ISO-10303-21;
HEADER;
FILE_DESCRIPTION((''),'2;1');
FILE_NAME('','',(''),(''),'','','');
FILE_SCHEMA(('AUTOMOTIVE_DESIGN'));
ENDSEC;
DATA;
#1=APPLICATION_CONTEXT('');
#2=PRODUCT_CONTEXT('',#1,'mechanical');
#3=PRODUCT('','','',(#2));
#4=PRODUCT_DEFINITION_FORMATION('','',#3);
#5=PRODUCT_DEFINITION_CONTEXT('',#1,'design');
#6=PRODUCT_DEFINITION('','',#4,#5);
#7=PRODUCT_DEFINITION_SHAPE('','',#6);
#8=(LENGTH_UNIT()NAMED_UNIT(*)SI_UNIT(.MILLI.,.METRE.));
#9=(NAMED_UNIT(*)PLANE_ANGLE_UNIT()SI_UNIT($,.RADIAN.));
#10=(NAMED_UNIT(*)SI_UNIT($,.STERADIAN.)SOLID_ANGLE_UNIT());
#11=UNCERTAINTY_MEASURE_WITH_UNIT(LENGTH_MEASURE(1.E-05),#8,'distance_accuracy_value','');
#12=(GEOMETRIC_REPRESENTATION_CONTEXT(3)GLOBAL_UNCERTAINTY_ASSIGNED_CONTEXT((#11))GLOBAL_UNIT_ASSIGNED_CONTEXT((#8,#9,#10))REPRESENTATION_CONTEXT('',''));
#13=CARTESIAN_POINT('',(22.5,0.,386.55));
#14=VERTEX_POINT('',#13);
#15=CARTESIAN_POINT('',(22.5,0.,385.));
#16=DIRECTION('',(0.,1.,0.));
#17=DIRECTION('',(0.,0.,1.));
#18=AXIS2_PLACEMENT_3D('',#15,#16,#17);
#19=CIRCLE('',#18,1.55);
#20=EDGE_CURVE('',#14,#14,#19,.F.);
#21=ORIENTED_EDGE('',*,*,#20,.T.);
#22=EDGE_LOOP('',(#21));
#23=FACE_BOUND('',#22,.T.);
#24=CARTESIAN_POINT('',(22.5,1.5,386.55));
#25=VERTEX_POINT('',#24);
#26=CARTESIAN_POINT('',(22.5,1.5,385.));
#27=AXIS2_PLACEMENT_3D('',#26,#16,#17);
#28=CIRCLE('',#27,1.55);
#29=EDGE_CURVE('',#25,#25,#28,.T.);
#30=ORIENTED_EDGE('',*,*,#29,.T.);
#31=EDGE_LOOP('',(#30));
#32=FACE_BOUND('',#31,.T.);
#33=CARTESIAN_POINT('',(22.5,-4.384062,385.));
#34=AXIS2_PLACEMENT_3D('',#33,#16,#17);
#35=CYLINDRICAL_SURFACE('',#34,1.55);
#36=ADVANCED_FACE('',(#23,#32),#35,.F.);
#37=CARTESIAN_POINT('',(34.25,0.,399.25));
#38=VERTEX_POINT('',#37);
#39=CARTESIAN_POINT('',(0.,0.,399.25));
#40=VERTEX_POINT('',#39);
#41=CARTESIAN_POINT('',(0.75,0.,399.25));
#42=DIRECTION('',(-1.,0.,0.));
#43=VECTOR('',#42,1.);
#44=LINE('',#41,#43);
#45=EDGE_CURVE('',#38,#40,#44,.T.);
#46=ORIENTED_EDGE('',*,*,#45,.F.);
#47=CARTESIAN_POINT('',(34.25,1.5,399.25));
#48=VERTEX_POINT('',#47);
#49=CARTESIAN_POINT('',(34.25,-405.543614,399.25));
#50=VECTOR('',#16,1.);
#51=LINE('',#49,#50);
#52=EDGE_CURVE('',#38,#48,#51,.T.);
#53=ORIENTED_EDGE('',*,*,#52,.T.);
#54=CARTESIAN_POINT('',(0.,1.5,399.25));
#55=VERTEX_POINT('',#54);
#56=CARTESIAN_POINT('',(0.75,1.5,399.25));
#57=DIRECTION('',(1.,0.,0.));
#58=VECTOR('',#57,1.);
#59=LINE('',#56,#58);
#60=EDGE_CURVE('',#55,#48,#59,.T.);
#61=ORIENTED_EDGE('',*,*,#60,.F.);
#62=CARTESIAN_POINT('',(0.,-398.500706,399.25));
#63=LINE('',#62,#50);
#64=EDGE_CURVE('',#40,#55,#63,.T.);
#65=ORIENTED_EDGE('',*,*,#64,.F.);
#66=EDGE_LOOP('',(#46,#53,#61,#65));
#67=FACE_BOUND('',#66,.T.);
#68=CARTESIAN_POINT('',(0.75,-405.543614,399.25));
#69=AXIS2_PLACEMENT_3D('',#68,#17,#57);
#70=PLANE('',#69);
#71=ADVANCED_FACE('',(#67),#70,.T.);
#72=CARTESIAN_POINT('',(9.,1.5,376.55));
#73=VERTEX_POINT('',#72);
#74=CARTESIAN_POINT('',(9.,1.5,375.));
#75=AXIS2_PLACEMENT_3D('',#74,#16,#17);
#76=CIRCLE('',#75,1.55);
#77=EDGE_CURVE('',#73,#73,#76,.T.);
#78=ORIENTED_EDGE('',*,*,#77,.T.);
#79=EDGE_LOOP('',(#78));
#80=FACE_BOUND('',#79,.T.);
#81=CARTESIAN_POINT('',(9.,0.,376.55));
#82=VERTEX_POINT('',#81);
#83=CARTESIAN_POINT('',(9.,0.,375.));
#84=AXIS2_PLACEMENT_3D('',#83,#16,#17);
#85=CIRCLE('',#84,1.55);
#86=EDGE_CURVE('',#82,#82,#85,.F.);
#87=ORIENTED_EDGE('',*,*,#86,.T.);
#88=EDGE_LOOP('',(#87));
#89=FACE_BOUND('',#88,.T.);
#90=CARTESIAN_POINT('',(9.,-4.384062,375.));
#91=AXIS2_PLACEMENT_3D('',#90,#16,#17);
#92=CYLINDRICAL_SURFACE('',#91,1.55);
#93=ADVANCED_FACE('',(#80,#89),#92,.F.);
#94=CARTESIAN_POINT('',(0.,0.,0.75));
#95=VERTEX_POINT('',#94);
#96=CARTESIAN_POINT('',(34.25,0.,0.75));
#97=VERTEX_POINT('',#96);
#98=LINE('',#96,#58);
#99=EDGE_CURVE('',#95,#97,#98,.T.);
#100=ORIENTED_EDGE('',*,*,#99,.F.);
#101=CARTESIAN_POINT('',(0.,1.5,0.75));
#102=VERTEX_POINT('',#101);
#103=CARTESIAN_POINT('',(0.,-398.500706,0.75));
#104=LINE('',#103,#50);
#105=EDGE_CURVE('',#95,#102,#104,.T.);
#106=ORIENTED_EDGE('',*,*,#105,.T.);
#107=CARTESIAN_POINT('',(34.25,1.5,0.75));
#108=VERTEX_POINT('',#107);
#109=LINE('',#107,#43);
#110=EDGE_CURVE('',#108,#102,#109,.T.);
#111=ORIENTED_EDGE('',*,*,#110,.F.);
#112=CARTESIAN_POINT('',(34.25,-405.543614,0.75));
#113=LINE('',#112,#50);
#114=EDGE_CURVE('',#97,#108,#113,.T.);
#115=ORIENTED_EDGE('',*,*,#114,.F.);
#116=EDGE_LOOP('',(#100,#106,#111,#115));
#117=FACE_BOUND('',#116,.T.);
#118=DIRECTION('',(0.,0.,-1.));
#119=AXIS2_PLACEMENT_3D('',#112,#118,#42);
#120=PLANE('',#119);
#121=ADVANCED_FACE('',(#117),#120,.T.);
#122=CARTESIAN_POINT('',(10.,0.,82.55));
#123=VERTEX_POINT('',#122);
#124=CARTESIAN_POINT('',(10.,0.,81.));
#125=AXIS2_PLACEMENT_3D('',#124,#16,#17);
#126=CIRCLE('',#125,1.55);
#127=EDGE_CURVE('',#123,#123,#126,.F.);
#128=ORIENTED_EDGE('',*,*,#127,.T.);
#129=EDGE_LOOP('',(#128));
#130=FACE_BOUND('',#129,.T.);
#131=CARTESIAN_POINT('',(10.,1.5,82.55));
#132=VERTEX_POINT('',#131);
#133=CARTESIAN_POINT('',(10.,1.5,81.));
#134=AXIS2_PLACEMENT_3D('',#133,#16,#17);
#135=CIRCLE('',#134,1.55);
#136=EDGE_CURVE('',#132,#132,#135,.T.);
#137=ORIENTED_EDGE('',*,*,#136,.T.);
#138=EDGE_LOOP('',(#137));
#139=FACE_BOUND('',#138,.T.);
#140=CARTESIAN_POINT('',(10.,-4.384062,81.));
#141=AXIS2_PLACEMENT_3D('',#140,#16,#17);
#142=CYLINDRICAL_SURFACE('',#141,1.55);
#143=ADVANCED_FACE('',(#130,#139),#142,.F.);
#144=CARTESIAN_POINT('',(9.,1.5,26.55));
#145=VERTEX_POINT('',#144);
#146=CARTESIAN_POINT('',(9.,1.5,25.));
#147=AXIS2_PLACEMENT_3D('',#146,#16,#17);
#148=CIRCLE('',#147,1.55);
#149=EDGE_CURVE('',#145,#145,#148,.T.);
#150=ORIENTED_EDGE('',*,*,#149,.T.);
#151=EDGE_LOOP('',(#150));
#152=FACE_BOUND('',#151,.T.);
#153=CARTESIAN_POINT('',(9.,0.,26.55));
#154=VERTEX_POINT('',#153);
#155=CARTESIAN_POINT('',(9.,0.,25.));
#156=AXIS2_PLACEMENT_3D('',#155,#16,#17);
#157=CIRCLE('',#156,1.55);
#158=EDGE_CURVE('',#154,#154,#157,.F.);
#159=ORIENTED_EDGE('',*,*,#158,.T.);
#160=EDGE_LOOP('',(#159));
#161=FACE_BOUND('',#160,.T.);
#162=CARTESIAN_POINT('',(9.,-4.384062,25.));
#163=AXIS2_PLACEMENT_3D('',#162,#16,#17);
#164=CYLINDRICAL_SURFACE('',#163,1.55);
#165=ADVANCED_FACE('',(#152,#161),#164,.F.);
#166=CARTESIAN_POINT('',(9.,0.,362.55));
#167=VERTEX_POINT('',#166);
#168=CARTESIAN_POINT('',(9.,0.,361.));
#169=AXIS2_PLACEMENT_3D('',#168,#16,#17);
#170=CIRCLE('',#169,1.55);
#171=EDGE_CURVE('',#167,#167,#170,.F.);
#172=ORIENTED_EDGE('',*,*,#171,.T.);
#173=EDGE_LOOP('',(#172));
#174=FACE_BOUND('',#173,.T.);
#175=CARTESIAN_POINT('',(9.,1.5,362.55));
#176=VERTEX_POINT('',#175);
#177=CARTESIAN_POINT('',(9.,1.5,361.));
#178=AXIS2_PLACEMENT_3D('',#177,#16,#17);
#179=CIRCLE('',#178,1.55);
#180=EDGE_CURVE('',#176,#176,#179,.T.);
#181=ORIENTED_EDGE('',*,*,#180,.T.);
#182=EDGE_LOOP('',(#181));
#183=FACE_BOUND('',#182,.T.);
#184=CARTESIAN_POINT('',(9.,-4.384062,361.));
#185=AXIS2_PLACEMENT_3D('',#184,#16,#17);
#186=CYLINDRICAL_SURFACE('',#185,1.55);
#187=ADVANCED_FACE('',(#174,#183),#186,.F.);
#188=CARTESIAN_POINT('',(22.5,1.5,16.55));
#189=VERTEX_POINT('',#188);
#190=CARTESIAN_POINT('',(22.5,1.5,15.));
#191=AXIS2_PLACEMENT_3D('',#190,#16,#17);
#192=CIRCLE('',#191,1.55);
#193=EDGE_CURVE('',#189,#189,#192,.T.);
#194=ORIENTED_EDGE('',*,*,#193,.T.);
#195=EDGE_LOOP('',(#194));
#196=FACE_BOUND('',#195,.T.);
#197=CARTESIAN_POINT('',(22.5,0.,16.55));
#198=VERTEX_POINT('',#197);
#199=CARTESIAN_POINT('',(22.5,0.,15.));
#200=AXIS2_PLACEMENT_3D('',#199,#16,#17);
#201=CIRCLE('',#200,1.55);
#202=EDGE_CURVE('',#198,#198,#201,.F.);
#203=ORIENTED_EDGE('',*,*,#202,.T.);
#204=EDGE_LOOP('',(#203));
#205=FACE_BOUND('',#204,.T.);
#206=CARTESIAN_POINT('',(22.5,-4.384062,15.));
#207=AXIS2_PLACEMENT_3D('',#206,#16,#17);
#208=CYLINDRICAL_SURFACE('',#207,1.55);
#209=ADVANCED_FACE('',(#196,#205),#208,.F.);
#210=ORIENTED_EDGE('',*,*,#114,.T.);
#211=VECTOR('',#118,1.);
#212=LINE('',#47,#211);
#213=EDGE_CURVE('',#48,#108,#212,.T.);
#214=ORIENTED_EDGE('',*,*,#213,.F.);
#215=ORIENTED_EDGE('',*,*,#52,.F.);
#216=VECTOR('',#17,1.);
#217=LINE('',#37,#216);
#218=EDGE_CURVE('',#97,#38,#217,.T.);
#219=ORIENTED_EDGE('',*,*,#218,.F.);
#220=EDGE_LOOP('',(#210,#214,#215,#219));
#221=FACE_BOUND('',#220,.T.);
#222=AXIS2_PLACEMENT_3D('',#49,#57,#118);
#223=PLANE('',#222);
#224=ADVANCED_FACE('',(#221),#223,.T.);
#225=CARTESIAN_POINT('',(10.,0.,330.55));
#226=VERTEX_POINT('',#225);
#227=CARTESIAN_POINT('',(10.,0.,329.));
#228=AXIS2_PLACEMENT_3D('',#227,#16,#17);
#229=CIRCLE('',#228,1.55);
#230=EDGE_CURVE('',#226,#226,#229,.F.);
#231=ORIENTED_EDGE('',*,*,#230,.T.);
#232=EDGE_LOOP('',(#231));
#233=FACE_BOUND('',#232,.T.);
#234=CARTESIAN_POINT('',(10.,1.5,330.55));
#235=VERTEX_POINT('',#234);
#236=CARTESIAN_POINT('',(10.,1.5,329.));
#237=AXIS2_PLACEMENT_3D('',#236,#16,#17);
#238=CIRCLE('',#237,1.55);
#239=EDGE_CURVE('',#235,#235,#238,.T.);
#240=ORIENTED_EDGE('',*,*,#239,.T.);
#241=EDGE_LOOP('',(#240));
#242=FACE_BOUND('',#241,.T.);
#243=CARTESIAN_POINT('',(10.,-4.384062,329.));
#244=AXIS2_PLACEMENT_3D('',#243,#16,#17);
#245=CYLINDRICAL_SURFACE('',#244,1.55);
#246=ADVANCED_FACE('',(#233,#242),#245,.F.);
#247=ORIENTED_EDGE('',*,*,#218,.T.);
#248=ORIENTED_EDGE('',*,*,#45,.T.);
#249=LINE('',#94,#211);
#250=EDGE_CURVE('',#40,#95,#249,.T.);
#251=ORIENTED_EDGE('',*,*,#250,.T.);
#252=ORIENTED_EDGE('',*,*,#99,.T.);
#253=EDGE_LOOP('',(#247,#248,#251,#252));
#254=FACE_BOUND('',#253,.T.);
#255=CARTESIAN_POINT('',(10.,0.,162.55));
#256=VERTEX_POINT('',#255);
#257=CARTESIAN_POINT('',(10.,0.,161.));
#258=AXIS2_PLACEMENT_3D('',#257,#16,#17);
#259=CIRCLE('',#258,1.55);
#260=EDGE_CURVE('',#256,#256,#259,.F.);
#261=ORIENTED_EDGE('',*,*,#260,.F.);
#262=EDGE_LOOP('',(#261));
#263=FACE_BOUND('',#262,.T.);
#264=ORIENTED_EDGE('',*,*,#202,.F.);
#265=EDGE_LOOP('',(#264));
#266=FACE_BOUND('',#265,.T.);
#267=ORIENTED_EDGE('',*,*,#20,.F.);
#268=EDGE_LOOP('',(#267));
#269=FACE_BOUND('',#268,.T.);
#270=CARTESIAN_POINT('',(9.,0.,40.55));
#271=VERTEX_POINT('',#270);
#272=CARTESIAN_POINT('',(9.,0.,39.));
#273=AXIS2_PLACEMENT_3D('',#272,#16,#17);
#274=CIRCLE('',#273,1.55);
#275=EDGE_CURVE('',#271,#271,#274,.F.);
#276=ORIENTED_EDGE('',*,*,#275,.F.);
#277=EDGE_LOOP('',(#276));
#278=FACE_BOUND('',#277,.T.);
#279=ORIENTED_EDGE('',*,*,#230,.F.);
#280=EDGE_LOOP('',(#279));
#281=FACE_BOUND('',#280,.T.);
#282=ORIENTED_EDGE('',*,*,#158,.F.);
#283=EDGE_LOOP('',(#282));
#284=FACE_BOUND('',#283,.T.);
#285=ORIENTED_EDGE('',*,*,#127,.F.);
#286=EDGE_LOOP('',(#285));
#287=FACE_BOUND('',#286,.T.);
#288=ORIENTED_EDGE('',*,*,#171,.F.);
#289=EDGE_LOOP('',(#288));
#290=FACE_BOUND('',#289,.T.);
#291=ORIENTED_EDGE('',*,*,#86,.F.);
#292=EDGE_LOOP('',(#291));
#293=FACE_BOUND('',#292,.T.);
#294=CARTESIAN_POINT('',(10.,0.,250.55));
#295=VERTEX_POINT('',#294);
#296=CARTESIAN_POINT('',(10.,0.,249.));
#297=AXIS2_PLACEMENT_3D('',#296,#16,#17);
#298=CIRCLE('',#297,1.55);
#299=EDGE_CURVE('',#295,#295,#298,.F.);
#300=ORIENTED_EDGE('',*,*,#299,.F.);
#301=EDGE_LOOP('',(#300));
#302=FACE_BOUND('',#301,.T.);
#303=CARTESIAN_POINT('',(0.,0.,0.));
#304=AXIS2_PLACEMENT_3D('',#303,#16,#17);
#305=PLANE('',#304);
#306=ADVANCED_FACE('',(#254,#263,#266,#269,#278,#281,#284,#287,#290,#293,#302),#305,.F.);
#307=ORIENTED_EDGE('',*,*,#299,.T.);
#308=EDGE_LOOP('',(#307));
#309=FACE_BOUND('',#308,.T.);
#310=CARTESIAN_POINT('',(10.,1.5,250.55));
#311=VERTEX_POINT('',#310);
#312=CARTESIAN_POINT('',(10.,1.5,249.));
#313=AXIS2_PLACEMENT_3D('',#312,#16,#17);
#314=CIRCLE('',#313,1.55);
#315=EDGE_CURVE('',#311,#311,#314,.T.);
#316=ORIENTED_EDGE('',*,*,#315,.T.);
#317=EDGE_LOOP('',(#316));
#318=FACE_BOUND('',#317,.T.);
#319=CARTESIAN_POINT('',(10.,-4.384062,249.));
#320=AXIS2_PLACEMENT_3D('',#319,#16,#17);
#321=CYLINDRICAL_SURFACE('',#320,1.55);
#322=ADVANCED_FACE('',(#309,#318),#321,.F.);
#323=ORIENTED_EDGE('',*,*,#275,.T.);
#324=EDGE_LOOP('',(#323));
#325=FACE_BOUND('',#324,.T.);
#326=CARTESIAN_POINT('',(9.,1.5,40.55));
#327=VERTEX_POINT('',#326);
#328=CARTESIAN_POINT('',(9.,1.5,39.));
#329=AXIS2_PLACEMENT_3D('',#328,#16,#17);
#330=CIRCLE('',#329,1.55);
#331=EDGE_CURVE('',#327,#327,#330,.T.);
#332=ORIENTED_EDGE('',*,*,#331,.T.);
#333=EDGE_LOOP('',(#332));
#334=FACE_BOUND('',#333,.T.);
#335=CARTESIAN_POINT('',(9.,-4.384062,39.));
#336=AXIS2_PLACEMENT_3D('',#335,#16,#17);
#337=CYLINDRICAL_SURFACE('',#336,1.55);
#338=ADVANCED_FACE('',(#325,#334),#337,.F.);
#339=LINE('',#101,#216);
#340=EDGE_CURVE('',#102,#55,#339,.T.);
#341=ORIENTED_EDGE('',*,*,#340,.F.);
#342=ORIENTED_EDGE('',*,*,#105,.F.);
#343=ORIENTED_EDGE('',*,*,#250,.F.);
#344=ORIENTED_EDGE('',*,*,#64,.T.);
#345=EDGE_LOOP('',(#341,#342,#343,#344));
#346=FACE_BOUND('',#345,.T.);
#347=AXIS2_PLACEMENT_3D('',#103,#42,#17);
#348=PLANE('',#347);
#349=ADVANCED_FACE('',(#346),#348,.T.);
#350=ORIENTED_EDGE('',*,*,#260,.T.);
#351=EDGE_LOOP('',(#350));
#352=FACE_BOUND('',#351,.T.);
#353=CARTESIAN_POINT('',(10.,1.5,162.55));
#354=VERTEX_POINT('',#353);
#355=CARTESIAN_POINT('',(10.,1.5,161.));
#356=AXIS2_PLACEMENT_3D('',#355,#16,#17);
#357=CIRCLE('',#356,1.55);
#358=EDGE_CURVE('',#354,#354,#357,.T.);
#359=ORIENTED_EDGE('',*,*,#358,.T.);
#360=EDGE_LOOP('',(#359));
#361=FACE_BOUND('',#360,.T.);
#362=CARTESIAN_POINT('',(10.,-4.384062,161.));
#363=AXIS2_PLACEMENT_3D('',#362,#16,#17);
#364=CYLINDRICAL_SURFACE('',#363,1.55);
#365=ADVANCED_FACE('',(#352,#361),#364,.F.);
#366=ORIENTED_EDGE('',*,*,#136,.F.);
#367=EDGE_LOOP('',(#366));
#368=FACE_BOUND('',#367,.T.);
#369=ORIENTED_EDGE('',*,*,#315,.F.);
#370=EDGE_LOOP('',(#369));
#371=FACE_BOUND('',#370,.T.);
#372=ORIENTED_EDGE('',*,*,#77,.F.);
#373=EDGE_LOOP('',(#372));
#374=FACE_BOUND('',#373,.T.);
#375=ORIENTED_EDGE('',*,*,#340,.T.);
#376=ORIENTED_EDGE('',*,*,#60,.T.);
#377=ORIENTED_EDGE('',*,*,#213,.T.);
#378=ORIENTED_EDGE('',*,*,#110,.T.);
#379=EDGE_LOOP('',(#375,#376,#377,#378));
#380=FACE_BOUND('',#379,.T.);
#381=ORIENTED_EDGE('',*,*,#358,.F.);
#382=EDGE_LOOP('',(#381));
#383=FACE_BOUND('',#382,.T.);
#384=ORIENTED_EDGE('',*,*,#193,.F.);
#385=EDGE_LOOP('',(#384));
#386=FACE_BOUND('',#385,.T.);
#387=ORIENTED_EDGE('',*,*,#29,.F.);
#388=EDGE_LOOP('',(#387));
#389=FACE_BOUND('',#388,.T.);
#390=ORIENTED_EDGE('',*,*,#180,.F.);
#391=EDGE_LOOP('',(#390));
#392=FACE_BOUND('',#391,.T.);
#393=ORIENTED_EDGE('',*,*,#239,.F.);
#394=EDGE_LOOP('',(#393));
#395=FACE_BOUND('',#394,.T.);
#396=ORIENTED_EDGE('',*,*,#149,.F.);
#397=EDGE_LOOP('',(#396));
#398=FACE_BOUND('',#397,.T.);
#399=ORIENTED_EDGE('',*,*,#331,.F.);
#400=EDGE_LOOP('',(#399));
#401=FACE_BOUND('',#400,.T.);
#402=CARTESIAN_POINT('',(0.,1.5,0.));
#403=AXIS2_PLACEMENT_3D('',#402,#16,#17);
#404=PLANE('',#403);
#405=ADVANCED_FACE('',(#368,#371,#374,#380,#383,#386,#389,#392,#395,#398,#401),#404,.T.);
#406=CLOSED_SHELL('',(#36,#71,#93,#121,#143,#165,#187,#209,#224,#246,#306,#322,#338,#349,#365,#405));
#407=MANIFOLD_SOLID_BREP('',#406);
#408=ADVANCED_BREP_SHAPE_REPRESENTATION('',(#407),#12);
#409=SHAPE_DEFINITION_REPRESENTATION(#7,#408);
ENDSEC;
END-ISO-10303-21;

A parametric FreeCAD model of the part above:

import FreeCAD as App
import Part
import Sketcher

V = App.Vector
Q = App.Units.Quantity


def add_polygon(sketch, points):
    """Adds a closed chain of lines whose ends are joined by coincident constraints."""
    first, n = sketch.GeometryCount, len(points)
    for a, b in zip(points, points[1:] + points[:1]):
        sketch.addGeometry(Part.LineSegment(App.Vector(*a, 0), App.Vector(*b, 0)), False)
    for i in range(n):
        sketch.addConstraint(Sketcher.Constraint("Coincident", first + i, 2, first + (i + 1) % n, 1))

doc = App.newDocument("Part")
body = doc.addObject("PartDesign::Body", "Body")

sketch1 = body.newObject("Sketcher::SketchObject", "Sketch")
sketch1.AttachmentSupport = (doc.getObject("XZ_Plane"), [""])
sketch1.MapMode = "FlatFace"
add_polygon(sketch1, [(0, 0), (0, 400), (35, 400), (35, 0)])
sketch1.addConstraint(Sketcher.Constraint("Vertical", 0))
sketch1.addConstraint(Sketcher.Constraint("Horizontal", 1))
sketch1.addConstraint(Sketcher.Constraint("Vertical", 2))
sketch1.addConstraint(Sketcher.Constraint("Horizontal", 3))
sketch1.addConstraint(Sketcher.Constraint("Coincident", 3, 2, -1, 1))
sketch1.addConstraint(Sketcher.Constraint("DistanceX", 1, 1, 1, 2, Q("35 mm")))
sketch1.addConstraint(Sketcher.Constraint("DistanceY", 0, 1, 0, 2, Q("400 mm")))
pad1 = body.newObject("PartDesign::Pad", "Pad")
pad1.Profile = sketch1
pad1.Length = 1.5
pad1.Reversed = True

sketch2 = body.newObject("Sketcher::SketchObject", "Sketch001")
sketch2.AttachmentSupport = (doc.getObject("XZ_Plane"), [""])
sketch2.MapMode = "FlatFace"
sketch2.AttachmentOffset = App.Placement(V(0, 0, -1.5), App.Rotation())
sketch2.addGeometry(Part.Circle(V(22.5, 15, 0), V(0, 0, 1), 1.55), False)
sketch2.addGeometry(Part.Circle(V(22.5, 385, 0), V(0, 0, 1), 1.55), False)
sketch2.addConstraint(Sketcher.Constraint("Equal", 0, 1))
sketch2.addConstraint(Sketcher.Constraint("Vertical", 0, 3, 1, 3))
sketch2.addConstraint(Sketcher.Constraint("Diameter", 0, Q("3.1 mm")))
sketch2.addConstraint(Sketcher.Constraint("DistanceY", -1, 1, 0, 3, Q("15 mm")))
sketch2.addConstraint(Sketcher.Constraint("DistanceY", -1, 1, 1, 3, Q("385 mm")))
sketch2.addConstraint(Sketcher.Constraint("DistanceX", -1, 1, 0, 3, Q("22.5 mm")))
pocket1 = body.newObject("PartDesign::Pocket", "Pocket")
pocket1.Profile = sketch2
pocket1.Length = 1.5
pocket1.Reversed = True

sketch3 = body.newObject("Sketcher::SketchObject", "Sketch002")
sketch3.AttachmentSupport = (doc.getObject("XZ_Plane"), [""])
sketch3.MapMode = "FlatFace"
sketch3.AttachmentOffset = App.Placement(V(0, 0, -1.5), App.Rotation())
sketch3.addGeometry(Part.Circle(V(9, 25, 0), V(0, 0, 1), 1.55), False)
sketch3.addGeometry(Part.Circle(V(9, 39, 0), V(0, 0, 1), 1.55), False)
sketch3.addGeometry(Part.Circle(V(9, 375, 0), V(0, 0, 1), 1.55), False)
sketch3.addGeometry(Part.Circle(V(9, 361, 0), V(0, 0, 1), 1.55), False)
sketch3.addConstraint(Sketcher.Constraint("Equal", 0, 1))
sketch3.addConstraint(Sketcher.Constraint("Equal", 1, 2))
sketch3.addConstraint(Sketcher.Constraint("Equal", 2, 3))
sketch3.addConstraint(Sketcher.Constraint("Vertical", 0, 3, 1, 3))
sketch3.addConstraint(Sketcher.Constraint("Vertical", 1, 3, 2, 3))
sketch3.addConstraint(Sketcher.Constraint("Vertical", 2, 3, 3, 3))
sketch3.addConstraint(Sketcher.Constraint("Diameter", 0, Q("3.1 mm")))
sketch3.addConstraint(Sketcher.Constraint("DistanceX", -1, 1, 0, 3, Q("9 mm")))
sketch3.addConstraint(Sketcher.Constraint("DistanceY", -1, 1, 0, 3, Q("25 mm")))
sketch3.addConstraint(Sketcher.Constraint("DistanceY", -1, 1, 1, 3, Q("39 mm")))
sketch3.addConstraint(Sketcher.Constraint("DistanceY", -1, 1, 2, 3, Q("375 mm")))
sketch3.addConstraint(Sketcher.Constraint("DistanceY", -1, 1, 3, 3, Q("361 mm")))
pocket2 = body.newObject("PartDesign::Pocket", "Pocket001")
pocket2.Profile = sketch3
pocket2.Length = 1.5
pocket2.Reversed = True

sketch4 = body.newObject("Sketcher::SketchObject", "Sketch003")
sketch4.AttachmentSupport = (doc.getObject("XZ_Plane"), [""])
sketch4.MapMode = "FlatFace"
sketch4.AttachmentOffset = App.Placement(V(0, 0, -1.5), App.Rotation())
sketch4.addGeometry(Part.Circle(V(10, 81, 0), V(0, 0, 1), 1.55), False)
sketch4.addGeometry(Part.Circle(V(10, 161, 0), V(0, 0, 1), 1.55), False)
sketch4.addGeometry(Part.Circle(V(10, 249, 0), V(0, 0, 1), 1.55), False)
sketch4.addGeometry(Part.Circle(V(10, 329, 0), V(0, 0, 1), 1.55), False)
sketch4.addConstraint(Sketcher.Constraint("Equal", 0, 1))
sketch4.addConstraint(Sketcher.Constraint("Equal", 1, 2))
sketch4.addConstraint(Sketcher.Constraint("Equal", 2, 3))
sketch4.addConstraint(Sketcher.Constraint("Vertical", 0, 3, 1, 3))
sketch4.addConstraint(Sketcher.Constraint("Vertical", 1, 3, 2, 3))
sketch4.addConstraint(Sketcher.Constraint("Vertical", 2, 3, 3, 3))
sketch4.addConstraint(Sketcher.Constraint("Diameter", 0, Q("3.1 mm")))
sketch4.addConstraint(Sketcher.Constraint("DistanceX", -1, 1, 0, 3, Q("10 mm")))
sketch4.addConstraint(Sketcher.Constraint("DistanceY", -1, 1, 0, 3, Q("81 mm")))
sketch4.addConstraint(Sketcher.Constraint("DistanceY", -1, 1, 1, 3, Q("161 mm")))
sketch4.addConstraint(Sketcher.Constraint("DistanceY", -1, 1, 2, 3, Q("249 mm")))
sketch4.addConstraint(Sketcher.Constraint("DistanceY", -1, 1, 3, 3, Q("329 mm")))
pocket3 = body.newObject("PartDesign::Pocket", "Pocket002")
pocket3.Profile = sketch4
pocket3.Length = 1.5
pocket3.Reversed = True

sketch5 = body.newObject("Sketcher::SketchObject", "Sketch004")
sketch5.AttachmentSupport = (doc.getObject("XZ_Plane"), [""])
sketch5.MapMode = "FlatFace"
sketch5.AttachmentOffset = App.Placement(V(0, 0, -1.5), App.Rotation())
add_polygon(sketch5, [(-41.153, -41.153), (-41.153, 441.153), (76.153, 441.153), (76.153, -41.153)])
add_polygon(sketch5, [(34.25, 399.25), (0.75, 399.25), (0.75, 0.75), (34.25, 0.75)])
sketch5.addConstraint(Sketcher.Constraint("Vertical", 0))
sketch5.addConstraint(Sketcher.Constraint("Horizontal", 1))
sketch5.addConstraint(Sketcher.Constraint("Vertical", 2))
sketch5.addConstraint(Sketcher.Constraint("Horizontal", 3))
sketch5.addConstraint(Sketcher.Constraint("Horizontal", 4))
sketch5.addConstraint(Sketcher.Constraint("Vertical", 5))
sketch5.addConstraint(Sketcher.Constraint("Horizontal", 6))
sketch5.addConstraint(Sketcher.Constraint("Vertical", 7))
sketch5.addConstraint(Sketcher.Constraint("DistanceX", 4, 2, 4, 1, Q("33.5 mm")))
sketch5.addConstraint(Sketcher.Constraint("DistanceY", 5, 2, 5, 1, Q("398.5 mm")))
sketch5.addConstraint(Sketcher.Constraint("DistanceX", 1, 1, 1, 2, Q("117.306 mm")))
sketch5.addConstraint(Sketcher.Constraint("DistanceY", 0, 1, 0, 2, Q("482.306 mm")))
sketch5.addConstraint(Sketcher.Constraint("DistanceX", -1, 1, 4, 2, Q("0.75 mm")))
sketch5.addConstraint(Sketcher.Constraint("DistanceY", -1, 1, 4, 2, Q("399.25 mm")))
sketch5.addConstraint(Sketcher.Constraint("DistanceX", 0, 2, -1, 1, Q("41.153 mm")))
sketch5.addConstraint(Sketcher.Constraint("DistanceY", -1, 1, 0, 2, Q("441.153 mm")))
pocket4 = body.newObject("PartDesign::Pocket", "Pocket003")
pocket4.Profile = sketch5
pocket4.Length = 1.5
pocket4.Reversed = True

sketch6 = body.newObject("Sketcher::SketchObject", "Sketch005")
sketch6.AttachmentSupport = (doc.getObject("XZ_Plane"), [""])
sketch6.MapMode = "FlatFace"
sketch6.AttachmentOffset = App.Placement(V(0, 0, -1.5), App.Rotation())
add_polygon(sketch6, [(0, 0.75), (0, 399.25), (0.75, 399.25), (0.75, 0.75)])
sketch6.addConstraint(Sketcher.Constraint("Vertical", 0))
sketch6.addConstraint(Sketcher.Constraint("Horizontal", 1))
sketch6.addConstraint(Sketcher.Constraint("Vertical", 2))
sketch6.addConstraint(Sketcher.Constraint("Horizontal", 3))
sketch6.addConstraint(Sketcher.Constraint("PointOnObject", 0, 2, -2))
sketch6.addConstraint(Sketcher.Constraint("DistanceY", 0, 1, 0, 2, Q("398.5 mm")))
sketch6.addConstraint(Sketcher.Constraint("DistanceX", 1, 1, 1, 2, Q("0.75 mm")))
sketch6.addConstraint(Sketcher.Constraint("DistanceY", -1, 1, 0, 2, Q("399.25 mm")))
pad2 = body.newObject("PartDesign::Pad", "Pad001")
pad2.Profile = sketch6
pad2.Length = 1.5

doc.recompute()
